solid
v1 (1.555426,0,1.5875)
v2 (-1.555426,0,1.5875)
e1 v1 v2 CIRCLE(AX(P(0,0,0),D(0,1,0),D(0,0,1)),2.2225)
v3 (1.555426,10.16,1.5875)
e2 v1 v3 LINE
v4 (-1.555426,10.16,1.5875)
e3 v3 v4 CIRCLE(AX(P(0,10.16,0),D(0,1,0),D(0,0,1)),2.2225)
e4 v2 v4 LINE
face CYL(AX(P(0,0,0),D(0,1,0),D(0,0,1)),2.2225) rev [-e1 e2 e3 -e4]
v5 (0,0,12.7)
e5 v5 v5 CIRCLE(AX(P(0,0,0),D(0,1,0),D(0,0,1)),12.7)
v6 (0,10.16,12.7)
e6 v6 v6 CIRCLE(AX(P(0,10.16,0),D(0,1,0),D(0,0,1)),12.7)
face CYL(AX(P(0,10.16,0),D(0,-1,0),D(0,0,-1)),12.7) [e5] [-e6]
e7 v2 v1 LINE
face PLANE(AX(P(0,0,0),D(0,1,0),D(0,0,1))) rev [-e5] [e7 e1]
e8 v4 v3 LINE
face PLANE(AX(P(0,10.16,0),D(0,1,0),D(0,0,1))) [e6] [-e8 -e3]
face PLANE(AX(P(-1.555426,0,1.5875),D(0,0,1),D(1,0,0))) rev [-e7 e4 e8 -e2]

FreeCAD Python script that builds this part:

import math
import FreeCAD as App
import Part
import Sketcher

V = App.Vector
Q = App.Units.Quantity

doc = App.newDocument("Part")
body = doc.addObject("PartDesign::Body", "Body")

# Sketch on XZ plane
sketch1 = doc.addObject("Sketcher::SketchObject", "Sketch")
body.addObject(sketch1)
sketch1.AttachmentSupport = (doc.XZ_Plane, [""])
sketch1.MapMode = "FlatFace"
sketch1.addGeometry(Part.Circle(V(0, 0, 0), V(0, 0, 1), 13), False)
sketch1.addConstraint(Sketcher.Constraint("Coincident", 0, 3, -1, 1))
sketch1.addConstraint(Sketcher.Constraint("Diameter", 0, Q("1 in")))
pad1 = doc.addObject("PartDesign::Pad", "Pad")
body.addObject(pad1)
pad1.Profile = sketch1
pad1.Length = Q("0.4 in")
pad1.Reversed = True

# Sketch on XZ plane
sketch2 = doc.addObject("Sketcher::SketchObject", "Sketch001")
body.addObject(sketch2)
sketch2.AttachmentSupport = (doc.XZ_Plane, [""])
sketch2.MapMode = "FlatFace"
sketch2.AttachmentOffset = App.Placement(V(0, 0, -0.4 * 25.4), App.Rotation())
sketch2.addGeometry(Part.LineSegment(V(-1.6, 1.6, 0), V(1.6, 1.6, 0)), False)
sketch2.addGeometry(Part.ArcOfCircle(Part.Circle(V(0, 0, 0), V(0, 0, 1), 2.2), math.radians(134), math.radians(406)), False)
sketch2.addConstraint(Sketcher.Constraint("Coincident", 0, 1, 1, 1))
sketch2.addConstraint(Sketcher.Constraint("Coincident", 1, 2, 0, 2))
sketch2.addConstraint(Sketcher.Constraint("Horizontal", 0))
sketch2.addConstraint(Sketcher.Constraint("Coincident", 1, 3, -1, 1))
sketch2.addConstraint(Sketcher.Constraint("Radius", 1, Q("0.0875 in")))
sketch2.addConstraint(Sketcher.Constraint("DistanceY", -1, 1, 0, 1, Q("0.0625 in")))
pocket1 = doc.addObject("PartDesign::Pocket", "Pocket")
body.addObject(pocket1)
pocket1.Profile = sketch2
pocket1.Type = "ThroughAll"
pocket1.Reversed = True

doc.recompute()
